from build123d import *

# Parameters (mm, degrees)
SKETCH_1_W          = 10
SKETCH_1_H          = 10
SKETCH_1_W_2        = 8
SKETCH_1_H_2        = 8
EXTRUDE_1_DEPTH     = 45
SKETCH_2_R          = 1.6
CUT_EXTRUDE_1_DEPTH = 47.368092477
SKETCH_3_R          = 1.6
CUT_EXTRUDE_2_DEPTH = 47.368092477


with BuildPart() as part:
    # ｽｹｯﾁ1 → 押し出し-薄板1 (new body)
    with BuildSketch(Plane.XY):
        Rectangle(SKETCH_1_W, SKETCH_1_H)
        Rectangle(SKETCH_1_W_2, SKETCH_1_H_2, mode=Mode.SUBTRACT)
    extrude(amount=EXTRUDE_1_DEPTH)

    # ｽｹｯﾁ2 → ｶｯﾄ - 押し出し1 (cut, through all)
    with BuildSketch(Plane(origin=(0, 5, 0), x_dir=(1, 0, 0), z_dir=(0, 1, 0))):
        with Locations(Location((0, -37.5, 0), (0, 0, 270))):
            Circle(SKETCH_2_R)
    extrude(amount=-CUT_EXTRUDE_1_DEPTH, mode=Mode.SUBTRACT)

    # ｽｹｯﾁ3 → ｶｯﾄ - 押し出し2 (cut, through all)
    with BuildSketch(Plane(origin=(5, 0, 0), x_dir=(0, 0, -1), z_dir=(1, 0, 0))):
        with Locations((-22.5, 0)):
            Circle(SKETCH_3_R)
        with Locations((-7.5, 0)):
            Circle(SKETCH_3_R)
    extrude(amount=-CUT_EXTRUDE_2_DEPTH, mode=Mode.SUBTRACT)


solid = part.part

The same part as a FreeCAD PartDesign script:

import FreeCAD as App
import Part
import Sketcher
from FreeCAD import Vector

doc = App.newDocument("Part")
params = doc.addObject("Spreadsheet::Sheet", "Params")
for row, (alias, value) in enumerate([
    ("sketch1_width", "10 mm"),
    ("sketch1_width2", "8 mm"),
    ("pad1_length", "45 mm"),
    ("sketch2_diameter", "3.2 mm"),
    ("sketch3_diameter", "3.2 mm"),
], start=1):
    params.set(f"A{row}", alias)
    params.set(f"B{row}", "=" + value)
    params.setAlias(f"B{row}", alias)

body = doc.addObject("PartDesign::Body", "Body")

# Sketch on XY plane
sketch1 = body.newObject("Sketcher::SketchObject", "Sketch")
sketch1.AttachmentSupport = (doc.getObject("XY_Plane"), [""])
sketch1.MapMode = "FlatFace"
sketch1.addGeometry(Part.LineSegment(Vector(-5, 5, 0), Vector(-5, -5, 0)), False)
sketch1.addGeometry(Part.LineSegment(Vector(-5, -5, 0), Vector(5, -5, 0)), False)
sketch1.addGeometry(Part.LineSegment(Vector(5, -5, 0), Vector(5, 5, 0)), False)
sketch1.addGeometry(Part.LineSegment(Vector(5, 5, 0), Vector(-5, 5, 0)), False)
sketch1.addGeometry(Part.LineSegment(Vector(4, -4, 0), Vector(-4, -4, 0)), False)
sketch1.addGeometry(Part.LineSegment(Vector(-4, -4, 0), Vector(-4, 4, 0)), False)
sketch1.addGeometry(Part.LineSegment(Vector(-4, 4, 0), Vector(4, 4, 0)), False)
sketch1.addGeometry(Part.LineSegment(Vector(4, 4, 0), Vector(4, -4, 0)), False)
sketch1.addConstraint(Sketcher.Constraint("Coincident", 0, 2, 1, 1))
sketch1.addConstraint(Sketcher.Constraint("Coincident", 1, 2, 2, 1))
sketch1.addConstraint(Sketcher.Constraint("Coincident", 2, 2, 3, 1))
sketch1.addConstraint(Sketcher.Constraint("Coincident", 3, 2, 0, 1))
sketch1.addConstraint(Sketcher.Constraint("Coincident", 4, 2, 5, 1))
sketch1.addConstraint(Sketcher.Constraint("Coincident", 5, 2, 6, 1))
sketch1.addConstraint(Sketcher.Constraint("Coincident", 6, 2, 7, 1))
sketch1.addConstraint(Sketcher.Constraint("Coincident", 7, 2, 4, 1))
sketch1.addConstraint(Sketcher.Constraint("Vertical", 0))
sketch1.addConstraint(Sketcher.Constraint("Horizontal", 1))
sketch1.addConstraint(Sketcher.Constraint("Vertical", 2))
sketch1.addConstraint(Sketcher.Constraint("Horizontal", 3))
sketch1.addConstraint(Sketcher.Constraint("Horizontal", 4))
sketch1.addConstraint(Sketcher.Constraint("Vertical", 5))
sketch1.addConstraint(Sketcher.Constraint("Horizontal", 6))
sketch1.addConstraint(Sketcher.Constraint("Vertical", 7))
sketch1.addConstraint(Sketcher.Constraint("Symmetric", 0, 2, 2, 2, -1, 1))
sketch1.addConstraint(Sketcher.Constraint("Symmetric", 4, 2, 6, 2, -1, 1))
sketch1.addConstraint(Sketcher.Constraint("Equal", 3, 0))
sketch1.addConstraint(Sketcher.Constraint("Equal", 6, 5))
sketch1.addConstraint(Sketcher.Constraint("DistanceX", 1, 1, 1, 2, 10.0))
sketch1.addConstraint(Sketcher.Constraint("DistanceX", 4, 2, 4, 1, 8.0))
sketch1.setExpression("Constraints[20]", "Params.sketch1_width")
sketch1.setExpression("Constraints[21]", "Params.sketch1_width2")
pad1 = body.newObject("PartDesign::Pad", "Pad")
pad1.Profile = sketch1
pad1.setExpression("Length", "Params.pad1_length")

# Sketch on XZ plane
sketch2 = body.newObject("Sketcher::SketchObject", "Sketch001")
sketch2.AttachmentSupport = (doc.getObject("XZ_Plane"), [""])
sketch2.MapMode = "FlatFace"
sketch2.AttachmentOffset = App.Placement(Vector(0, 0, -5), App.Rotation())
sketch2.addGeometry(Part.Circle(Vector(0, 37.5, 0), Vector(0, 0, 1), 1.6), False)
sketch2.addConstraint(Sketcher.Constraint("PointOnObject", 0, 3, -2))
sketch2.addConstraint(Sketcher.Constraint("Diameter", 0, 3.2))
sketch2.addConstraint(Sketcher.Constraint("DistanceY", -1, 1, 0, 3, 37.5))
sketch2.setExpression("Constraints[1]", "Params.sketch2_diameter")
pocket1 = body.newObject("PartDesign::Pocket", "Pocket")
pocket1.Profile = sketch2
pocket1.Type = "ThroughAll"
pocket1.Reversed = True

# Sketch on YZ plane
sketch3 = body.newObject("Sketcher::SketchObject", "Sketch002")
sketch3.AttachmentSupport = (doc.getObject("YZ_Plane"), [""])
sketch3.MapMode = "FlatFace"
sketch3.AttachmentOffset = App.Placement(Vector(0, 0, 5), App.Rotation())
sketch3.addGeometry(Part.Circle(Vector(0, 22.5, 0), Vector(0, 0, 1), 1.6), False)
sketch3.addGeometry(Part.Circle(Vector(0, 7.5, 0), Vector(0, 0, 1), 1.6), False)
sketch3.addConstraint(Sketcher.Constraint("Equal", 0, 1))
sketch3.addConstraint(Sketcher.Constraint("PointOnObject", 0, 3, -2))
sketch3.addConstraint(Sketcher.Constraint("PointOnObject", 1, 3, -2))
sketch3.addConstraint(Sketcher.Constraint("Diameter", 0, 3.2))
sketch3.addConstraint(Sketcher.Constraint("DistanceY", 1, 3, 0, 3, 15.0))
sketch3.addConstraint(Sketcher.Constraint("DistanceY", -1, 1, 0, 3, 22.5))
sketch3.setExpression("Constraints[3]", "Params.sketch3_diameter")
pocket2 = body.newObject("PartDesign::Pocket", "Pocket001")
pocket2.Profile = sketch3
pocket2.Type = "ThroughAll"

doc.recompute()
